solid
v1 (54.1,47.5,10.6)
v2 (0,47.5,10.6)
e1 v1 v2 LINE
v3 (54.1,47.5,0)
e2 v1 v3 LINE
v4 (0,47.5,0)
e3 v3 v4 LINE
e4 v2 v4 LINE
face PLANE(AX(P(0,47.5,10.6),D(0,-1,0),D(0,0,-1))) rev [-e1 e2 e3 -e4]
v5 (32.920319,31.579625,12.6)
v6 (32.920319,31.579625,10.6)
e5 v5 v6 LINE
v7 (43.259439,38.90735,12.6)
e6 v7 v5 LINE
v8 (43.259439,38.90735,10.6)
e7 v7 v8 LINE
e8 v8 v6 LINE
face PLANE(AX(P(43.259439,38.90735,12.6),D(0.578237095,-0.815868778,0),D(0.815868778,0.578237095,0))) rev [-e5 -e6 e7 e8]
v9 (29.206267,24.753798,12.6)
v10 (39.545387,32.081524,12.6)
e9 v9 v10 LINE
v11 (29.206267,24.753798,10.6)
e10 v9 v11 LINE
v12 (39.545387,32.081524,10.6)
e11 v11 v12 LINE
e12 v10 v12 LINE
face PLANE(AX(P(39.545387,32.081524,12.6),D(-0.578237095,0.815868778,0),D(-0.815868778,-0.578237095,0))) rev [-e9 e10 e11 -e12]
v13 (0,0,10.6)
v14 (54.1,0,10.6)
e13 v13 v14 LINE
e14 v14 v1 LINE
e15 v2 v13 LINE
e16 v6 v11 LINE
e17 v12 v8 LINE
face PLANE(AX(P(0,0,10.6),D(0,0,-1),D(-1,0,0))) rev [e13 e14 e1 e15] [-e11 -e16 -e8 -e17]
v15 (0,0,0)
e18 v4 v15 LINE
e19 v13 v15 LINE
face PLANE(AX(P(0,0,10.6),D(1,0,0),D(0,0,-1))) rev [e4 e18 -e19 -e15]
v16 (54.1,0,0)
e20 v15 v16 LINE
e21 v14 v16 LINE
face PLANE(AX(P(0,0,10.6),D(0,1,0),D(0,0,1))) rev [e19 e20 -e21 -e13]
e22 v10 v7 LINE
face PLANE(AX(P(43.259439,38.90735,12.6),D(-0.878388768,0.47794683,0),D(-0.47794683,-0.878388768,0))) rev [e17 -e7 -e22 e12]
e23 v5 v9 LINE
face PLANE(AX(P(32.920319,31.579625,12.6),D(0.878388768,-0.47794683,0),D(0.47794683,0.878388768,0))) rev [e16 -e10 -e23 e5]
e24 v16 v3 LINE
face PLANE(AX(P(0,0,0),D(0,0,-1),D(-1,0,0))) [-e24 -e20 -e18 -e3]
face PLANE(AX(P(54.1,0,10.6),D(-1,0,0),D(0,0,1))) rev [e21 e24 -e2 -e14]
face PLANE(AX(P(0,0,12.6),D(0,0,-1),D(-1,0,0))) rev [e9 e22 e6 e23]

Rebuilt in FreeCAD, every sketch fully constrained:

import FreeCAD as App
import Part
import Sketcher
from FreeCAD import Vector

doc = App.newDocument("Part")
body = doc.addObject("PartDesign::Body", "Body")

# Sketch on XY plane
sketch1 = doc.addObject("Sketcher::SketchObject", "Sketch")
body.addObject(sketch1)
sketch1.AttachmentSupport = (doc.XY_Plane, [""])
sketch1.MapMode = "FlatFace"
sketch1.addGeometry(Part.LineSegment(Vector(0, 48, 0), Vector(0, 0, 0)), False)
sketch1.addGeometry(Part.LineSegment(Vector(0, 0, 0), Vector(54, 0, 0)), False)
sketch1.addGeometry(Part.LineSegment(Vector(54, 0, 0), Vector(54, 48, 0)), False)
sketch1.addGeometry(Part.LineSegment(Vector(54, 48, 0), Vector(0, 48, 0)), False)
sketch1.addConstraint(Sketcher.Constraint("Coincident", 0, 2, 1, 1))
sketch1.addConstraint(Sketcher.Constraint("Coincident", 1, 2, 2, 1))
sketch1.addConstraint(Sketcher.Constraint("Coincident", 2, 2, 3, 1))
sketch1.addConstraint(Sketcher.Constraint("Coincident", 3, 2, 0, 1))
sketch1.addConstraint(Sketcher.Constraint("Vertical", 0))
sketch1.addConstraint(Sketcher.Constraint("Horizontal", 1))
sketch1.addConstraint(Sketcher.Constraint("Vertical", 2))
sketch1.addConstraint(Sketcher.Constraint("Horizontal", 3))
sketch1.addConstraint(Sketcher.Constraint("Coincident", 0, 2, -1, 1))
sketch1.addConstraint(Sketcher.Constraint("DistanceX", 1, 1, 1, 2, 54.1))
sketch1.addConstraint(Sketcher.Constraint("DistanceY", 0, 2, 0, 1, 47.5))
pad1 = doc.addObject("PartDesign::Pad", "Pad")
body.addObject(pad1)
pad1.Profile = sketch1
pad1.Length = 10.6

# Sketch on XY plane
sketch2 = doc.addObject("Sketcher::SketchObject", "Sketch001")
body.addObject(sketch2)
sketch2.AttachmentSupport = (doc.XY_Plane, [""])
sketch2.MapMode = "FlatFace"
sketch2.AttachmentOffset = App.Placement(Vector(0, 0, 10.6), App.Rotation())
sketch2.addGeometry(Part.LineSegment(Vector(43, 39, 0), Vector(33, 32, 0)), False)
sketch2.addGeometry(Part.LineSegment(Vector(33, 32, 0), Vector(29, 25, 0)), False)
sketch2.addGeometry(Part.LineSegment(Vector(29, 25, 0), Vector(40, 32, 0)), False)
sketch2.addGeometry(Part.LineSegment(Vector(40, 32, 0), Vector(43, 39, 0)), False)
sketch2.addConstraint(Sketcher.Constraint("Coincident", 0, 2, 1, 1))
sketch2.addConstraint(Sketcher.Constraint("Coincident", 1, 2, 2, 1))
sketch2.addConstraint(Sketcher.Constraint("Coincident", 2, 2, 3, 1))
sketch2.addConstraint(Sketcher.Constraint("Coincident", 3, 2, 0, 1))
sketch2.addConstraint(Sketcher.Constraint("Parallel", 0, 2))
sketch2.addConstraint(Sketcher.Constraint("Parallel", 1, 3))
sketch2.addConstraint(Sketcher.Constraint("DistanceY", -1, 1, 1, 2, 24.753798))
sketch2.addConstraint(Sketcher.Constraint("DistanceY", 0, 2, 2, 2, 0.501899))
sketch2.addConstraint(Sketcher.Constraint("Distance", 1, 7.770849))
sketch2.addConstraint(Sketcher.Constraint("DistanceX", -1, 1, 0, 2, 32.920319))
sketch2.addConstraint(Sketcher.Constraint("DistanceX", -1, 1, 3, 2, 43.259439))
sketch2.addConstraint(Sketcher.Constraint("DistanceY", -1, 1, 3, 2, 38.90735))
pad2 = doc.addObject("PartDesign::Pad", "Pad001")
body.addObject(pad2)
pad2.Profile = sketch2
pad2.Length = 2

doc.recompute()
